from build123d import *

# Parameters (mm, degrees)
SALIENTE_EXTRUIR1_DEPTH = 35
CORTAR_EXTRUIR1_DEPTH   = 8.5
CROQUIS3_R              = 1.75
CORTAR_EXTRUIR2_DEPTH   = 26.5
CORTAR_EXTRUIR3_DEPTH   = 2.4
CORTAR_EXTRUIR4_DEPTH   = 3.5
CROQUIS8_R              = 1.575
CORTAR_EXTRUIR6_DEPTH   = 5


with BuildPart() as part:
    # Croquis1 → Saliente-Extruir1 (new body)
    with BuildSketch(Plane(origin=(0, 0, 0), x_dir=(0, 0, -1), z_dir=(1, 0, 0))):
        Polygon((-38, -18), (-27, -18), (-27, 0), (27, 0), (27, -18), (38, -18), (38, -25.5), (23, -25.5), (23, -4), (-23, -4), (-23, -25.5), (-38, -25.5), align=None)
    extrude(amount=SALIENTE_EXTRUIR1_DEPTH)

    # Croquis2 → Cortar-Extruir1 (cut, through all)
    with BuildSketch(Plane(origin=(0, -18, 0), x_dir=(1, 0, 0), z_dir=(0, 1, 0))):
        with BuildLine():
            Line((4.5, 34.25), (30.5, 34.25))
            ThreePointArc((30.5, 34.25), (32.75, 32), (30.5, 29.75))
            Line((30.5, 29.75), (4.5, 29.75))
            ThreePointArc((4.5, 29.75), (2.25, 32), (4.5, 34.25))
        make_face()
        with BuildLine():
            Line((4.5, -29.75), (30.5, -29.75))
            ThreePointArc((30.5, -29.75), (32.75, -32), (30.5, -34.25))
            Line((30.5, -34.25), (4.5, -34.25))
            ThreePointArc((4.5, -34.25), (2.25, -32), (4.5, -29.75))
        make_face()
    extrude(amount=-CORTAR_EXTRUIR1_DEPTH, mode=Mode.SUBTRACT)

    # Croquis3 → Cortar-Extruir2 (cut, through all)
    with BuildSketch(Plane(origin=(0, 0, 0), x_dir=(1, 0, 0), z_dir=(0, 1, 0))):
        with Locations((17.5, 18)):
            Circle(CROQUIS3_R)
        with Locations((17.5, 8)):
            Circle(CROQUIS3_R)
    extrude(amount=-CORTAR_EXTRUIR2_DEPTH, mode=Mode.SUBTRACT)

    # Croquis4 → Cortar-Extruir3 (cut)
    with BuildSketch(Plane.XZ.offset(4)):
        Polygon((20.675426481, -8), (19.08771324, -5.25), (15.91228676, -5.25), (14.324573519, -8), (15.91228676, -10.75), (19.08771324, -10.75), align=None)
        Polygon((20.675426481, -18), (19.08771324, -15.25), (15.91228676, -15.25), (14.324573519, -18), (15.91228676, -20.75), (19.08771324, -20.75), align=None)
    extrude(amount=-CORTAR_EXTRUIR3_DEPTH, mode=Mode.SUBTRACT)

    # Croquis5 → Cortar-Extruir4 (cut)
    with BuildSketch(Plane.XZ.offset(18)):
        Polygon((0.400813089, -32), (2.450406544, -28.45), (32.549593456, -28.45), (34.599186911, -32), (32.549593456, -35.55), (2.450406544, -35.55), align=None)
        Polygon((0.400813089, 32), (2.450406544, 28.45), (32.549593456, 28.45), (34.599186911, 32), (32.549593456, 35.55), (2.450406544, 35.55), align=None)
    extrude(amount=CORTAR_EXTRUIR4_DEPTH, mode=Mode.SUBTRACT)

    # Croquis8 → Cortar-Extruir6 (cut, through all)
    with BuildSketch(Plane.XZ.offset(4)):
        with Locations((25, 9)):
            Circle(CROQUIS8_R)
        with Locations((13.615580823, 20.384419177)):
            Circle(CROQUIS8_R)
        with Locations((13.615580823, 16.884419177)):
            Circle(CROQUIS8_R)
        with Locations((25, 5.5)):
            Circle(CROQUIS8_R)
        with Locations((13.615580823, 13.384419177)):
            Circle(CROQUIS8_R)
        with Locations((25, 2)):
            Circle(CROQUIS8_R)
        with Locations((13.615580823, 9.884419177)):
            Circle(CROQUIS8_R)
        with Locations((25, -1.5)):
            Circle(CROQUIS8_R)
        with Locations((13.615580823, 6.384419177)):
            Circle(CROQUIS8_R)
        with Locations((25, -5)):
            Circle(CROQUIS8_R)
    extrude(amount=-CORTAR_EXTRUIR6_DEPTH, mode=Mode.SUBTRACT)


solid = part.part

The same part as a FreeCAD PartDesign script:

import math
import FreeCAD as App
import Part
import Sketcher

V = App.Vector
Q = App.Units.Quantity

doc = App.newDocument("Part")
body = doc.addObject("PartDesign::Body", "Body")

# Sketch on YZ plane
sketch1 = doc.addObject("Sketcher::SketchObject", "Sketch")
body.addObject(sketch1)
sketch1.AttachmentSupport = (doc.YZ_Plane, [""])
sketch1.MapMode = "FlatFace"
sketch1.addGeometry([
    Part.LineSegment(V(-18, 27, 0), V(-18, 38, 0)),  # 0
    Part.LineSegment(V(-18, 38, 0), V(-26, 38, 0)),  # 1
    Part.LineSegment(V(-26, 38, 0), V(-26, 23, 0)),  # 2
    Part.LineSegment(V(-26, 23, 0), V(-4, 23, 0)),  # 3
    Part.LineSegment(V(-4, 23, 0), V(-4, -23, 0)),  # 4
    Part.LineSegment(V(-4, -23, 0), V(-26, -23, 0)),  # 5
    Part.LineSegment(V(-26, -23, 0), V(-26, -38, 0)),  # 6
    Part.LineSegment(V(-26, -38, 0), V(-18, -38, 0)),  # 7
    Part.LineSegment(V(-18, -38, 0), V(-18, -27, 0)),  # 8
    Part.LineSegment(V(-18, -27, 0), V(0, -27, 0)),  # 9
    Part.LineSegment(V(0, -27, 0), V(0, 27, 0)),  # 10
    Part.LineSegment(V(0, 27, 0), V(-18, 27, 0)),  # 11
], False)
sketch1.addConstraint([
    Sketcher.Constraint("Coincident", 0, 2, 1, 1),
    Sketcher.Constraint("Coincident", 1, 2, 2, 1),
    Sketcher.Constraint("Coincident", 2, 2, 3, 1),
    Sketcher.Constraint("Coincident", 3, 2, 4, 1),
    Sketcher.Constraint("Coincident", 4, 2, 5, 1),
    Sketcher.Constraint("Coincident", 5, 2, 6, 1),
    Sketcher.Constraint("Coincident", 6, 2, 7, 1),
    Sketcher.Constraint("Coincident", 7, 2, 8, 1),
    Sketcher.Constraint("Coincident", 8, 2, 9, 1),
    Sketcher.Constraint("Coincident", 9, 2, 10, 1),
    Sketcher.Constraint("Coincident", 10, 2, 11, 1),
    Sketcher.Constraint("Coincident", 11, 2, 0, 1),
    Sketcher.Constraint("Vertical", 0),
    Sketcher.Constraint("Horizontal", 1),
    Sketcher.Constraint("Vertical", 2),
    Sketcher.Constraint("Horizontal", 3),
    Sketcher.Constraint("Vertical", 4),
    Sketcher.Constraint("Horizontal", 5),
    Sketcher.Constraint("Vertical", 6),
    Sketcher.Constraint("Horizontal", 7),
    Sketcher.Constraint("Vertical", 8),
    Sketcher.Constraint("Horizontal", 9),
    Sketcher.Constraint("Vertical", 10),
    Sketcher.Constraint("Horizontal", 11),
    Sketcher.Constraint("Symmetric", 9, 2, 10, 2, -1, 1),
    Sketcher.Constraint("Symmetric", 2, 2, 5, 2, -1),
    Sketcher.Constraint("Symmetric", 0, 2, 7, 2, -1),
    Sketcher.Constraint("DistanceX", 9, 1, 9, 2, 18.0),
    Sketcher.Constraint("DistanceY", 0, 1, 0, 2, 11.0),
    Sketcher.Constraint("DistanceY", 2, 2, 2, 1, 15.0),
    Sketcher.Constraint("DistanceY", 4, 2, 4, 1, 46.0),
    Sketcher.Constraint("DistanceX", 1, 2, 1, 1, 7.5),
    Sketcher.Constraint("DistanceX", 3, 1, 3, 2, 21.5),
])
pad1 = doc.addObject("PartDesign::Pad", "Pad")
body.addObject(pad1)
pad1.Profile = sketch1
pad1.Length = 35

# Sketch on XZ plane
sketch2 = doc.addObject("Sketcher::SketchObject", "Sketch001")
body.addObject(sketch2)
sketch2.AttachmentSupport = (doc.XZ_Plane, [""])
sketch2.MapMode = "FlatFace"
sketch2.AttachmentOffset = App.Placement(V(0, 0, 18), App.Rotation())
sketch2.addGeometry([
    Part.LineSegment(V(30.5, -34.2, 0), V(4.5, -34.2, 0)),  # 0
    Part.ArcOfCircle(Part.Circle(V(4.5, -32, 0), V(0, 0, 1), 2.2), math.radians(90), math.radians(270)),  # 1
    Part.LineSegment(V(4.5, -29.8, 0), V(30.5, -29.8, 0)),  # 2
    Part.ArcOfCircle(Part.Circle(V(30.5, -32, 0), V(0, 0, 1), 2.2), math.radians(-90), math.radians(90)),  # 3
    Part.LineSegment(V(30.5, 29.8, 0), V(4.5, 29.8, 0)),  # 4
    Part.ArcOfCircle(Part.Circle(V(4.5, 32, 0), V(0, 0, 1), 2.2), math.radians(90), math.radians(270)),  # 5
    Part.LineSegment(V(4.5, 34.2, 0), V(30.5, 34.2, 0)),  # 6
    Part.ArcOfCircle(Part.Circle(V(30.5, 32, 0), V(0, 0, 1), 2.2), math.radians(-90), math.radians(90)),  # 7
], False)
sketch2.addConstraint([
    Sketcher.Constraint("Tangent", 0, 2, 1, 2),
    Sketcher.Constraint("Tangent", 1, 1, 2, 1),
    Sketcher.Constraint("Tangent", 2, 2, 3, 2),
    Sketcher.Constraint("Tangent", 3, 1, 0, 1),
    Sketcher.Constraint("Tangent", 4, 2, 5, 2),
    Sketcher.Constraint("Tangent", 5, 1, 6, 1),
    Sketcher.Constraint("Tangent", 6, 2, 7, 2),
    Sketcher.Constraint("Tangent", 7, 1, 4, 1),
    Sketcher.Constraint("Horizontal", 0),
    Sketcher.Constraint("Horizontal", 2),
    Sketcher.Constraint("Horizontal", 4),
    Sketcher.Constraint("Horizontal", 6),
    Sketcher.Constraint("Equal", 3, 5),
    Sketcher.Constraint("Symmetric", 1, 3, 5, 3, -1),
    Sketcher.Constraint("Vertical", 3, 3, 7, 3),
    Sketcher.Constraint("DistanceX", 0, 2, 0, 1, 26.0),
    Sketcher.Constraint("Radius", 1, 2.25),
    Sketcher.Constraint("DistanceY", 1, 3, -1, 1, 32.0),
    Sketcher.Constraint("DistanceX", -1, 1, 1, 3, 4.5),
])
pocket1 = doc.addObject("PartDesign::Pocket", "Pocket")
body.addObject(pocket1)
pocket1.Profile = sketch2
pocket1.Type = "ThroughAll"
pocket1.Reversed = True

# Sketch on XZ plane
sketch3 = doc.addObject("Sketcher::SketchObject", "Sketch002")
body.addObject(sketch3)
sketch3.AttachmentSupport = (doc.XZ_Plane, [""])
sketch3.MapMode = "FlatFace"
sketch3.addGeometry([
    Part.Circle(V(17.5, -18, 0), V(0, 0, 1), 1.8),
    Part.Circle(V(17.5, -8, 0), V(0, 0, 1), 1.8),
], False)
sketch3.addConstraint([
    Sketcher.Constraint("Equal", 0, 1),
    Sketcher.Constraint("Vertical", 0, 3, 1, 3),
    Sketcher.Constraint("Diameter", 0, 3.5),
    Sketcher.Constraint("DistanceY", 0, 3, -1, 1, 18.0),
    Sketcher.Constraint("DistanceY", 1, 3, -1, 1, 8.0),
    Sketcher.Constraint("DistanceX", -1, 1, 0, 3, 17.5),
])
pocket2 = doc.addObject("PartDesign::Pocket", "Pocket001")
body.addObject(pocket2)
pocket2.Profile = sketch3
pocket2.Type = "ThroughAll"
pocket2.Reversed = True

# Sketch on XZ plane
sketch4 = doc.addObject("Sketcher::SketchObject", "Sketch003")
body.addObject(sketch4)
sketch4.AttachmentSupport = (doc.XZ_Plane, [""])
sketch4.MapMode = "FlatFace"
sketch4.AttachmentOffset = App.Placement(V(0, 0, 4), App.Rotation())
sketch4.addGeometry([
    Part.LineSegment(V(20.7, -8, 0), V(19.1, -5.2, 0)),  # 0
    Part.LineSegment(V(19.1, -5.2, 0), V(15.9, -5.2, 0)),  # 1
    Part.LineSegment(V(15.9, -5.2, 0), V(14.3, -8, 0)),  # 2
    Part.LineSegment(V(14.3, -8, 0), V(15.9, -10.8, 0)),  # 3
    Part.LineSegment(V(15.9, -10.8, 0), V(19.1, -10.8, 0)),  # 4
    Part.LineSegment(V(19.1, -10.8, 0), V(20.7, -8, 0)),  # 5
    Part.LineSegment(V(20.7, -18, 0), V(19.1, -15.2, 0)),  # 6
    Part.LineSegment(V(19.1, -15.2, 0), V(15.9, -15.2, 0)),  # 7
    Part.LineSegment(V(15.9, -15.2, 0), V(14.3, -18, 0)),  # 8
    Part.LineSegment(V(14.3, -18, 0), V(15.9, -20.8, 0)),  # 9
    Part.LineSegment(V(15.9, -20.8, 0), V(19.1, -20.8, 0)),  # 10
    Part.LineSegment(V(19.1, -20.8, 0), V(20.7, -18, 0)),  # 11
], False)
sketch4.addConstraint([
    Sketcher.Constraint("Coincident", 0, 2, 1, 1),
    Sketcher.Constraint("Coincident", 1, 2, 2, 1),
    Sketcher.Constraint("Coincident", 2, 2, 3, 1),
    Sketcher.Constraint("Coincident", 3, 2, 4, 1),
    Sketcher.Constraint("Coincident", 4, 2, 5, 1),
    Sketcher.Constraint("Coincident", 5, 2, 0, 1),
    Sketcher.Constraint("Coincident", 6, 2, 7, 1),
    Sketcher.Constraint("Coincident", 7, 2, 8, 1),
    Sketcher.Constraint("Coincident", 8, 2, 9, 1),
    Sketcher.Constraint("Coincident", 9, 2, 10, 1),
    Sketcher.Constraint("Coincident", 10, 2, 11, 1),
    Sketcher.Constraint("Coincident", 11, 2, 6, 1),
    Sketcher.Constraint("Horizontal", 1),
    Sketcher.Constraint("Horizontal", 4),
    Sketcher.Constraint("Horizontal", 7),
    Sketcher.Constraint("Horizontal", 10),
    Sketcher.Constraint("Parallel", 0, 3),
    Sketcher.Constraint("Parallel", 2, 5),
    Sketcher.Constraint("Parallel", 3, 6),
    Sketcher.Constraint("Parallel", 5, 8),
    Sketcher.Constraint("Parallel", 6, 9),
    Sketcher.Constraint("Parallel", 8, 11),
    Sketcher.Constraint("Horizontal", 2, 2, 5, 2),
    Sketcher.Constraint("Horizontal", 8, 2, 11, 2),
    Sketcher.Constraint("Vertical", 1, 2, 3, 2),
    Sketcher.Constraint("Vertical", 0, 2, 4, 2),
    Sketcher.Constraint("Vertical", 4, 2, 6, 2),
    Sketcher.Constraint("Vertical", 3, 2, 7, 2),
    Sketcher.Constraint("Vertical", 2, 2, 8, 2),
    Sketcher.Constraint("Vertical", 7, 2, 9, 2),
    Sketcher.Constraint("Angle", 0, Q("120 deg")),
    Sketcher.Constraint("DistanceY", 2, 2, -1, 1, 8.0),
    Sketcher.Constraint("DistanceY", 8, 2, -1, 1, 18.0),
    Sketcher.Constraint("DistanceY", 3, 2, 1, 2, 5.5),
    Sketcher.Constraint("DistanceX", 1, 2, 1, 1, 3.175426),
    Sketcher.Constraint("DistanceX", -1, 1, 0, 2, 19.087713),
])
pocket3 = doc.addObject("PartDesign::Pocket", "Pocket002")
body.addObject(pocket3)
pocket3.Profile = sketch4
pocket3.Length = 2.4

# Sketch on XZ plane
sketch5 = doc.addObject("Sketcher::SketchObject", "Sketch004")
body.addObject(sketch5)
sketch5.AttachmentSupport = (doc.XZ_Plane, [""])
sketch5.MapMode = "FlatFace"
sketch5.AttachmentOffset = App.Placement(V(0, 0, 18), App.Rotation())
sketch5.addGeometry([
    Part.LineSegment(V(2.5, -28.4, 0), V(0.4, -32, 0)),  # 0
    Part.LineSegment(V(0.4, -32, 0), V(2.5, -35.5, 0)),  # 1
    Part.LineSegment(V(2.5, -35.5, 0), V(32.5, -35.5, 0)),  # 2
    Part.LineSegment(V(32.5, -35.5, 0), V(34.6, -32, 0)),  # 3
    Part.LineSegment(V(34.6, -32, 0), V(32.5, -28.4, 0)),  # 4
    Part.LineSegment(V(32.5, -28.4, 0), V(2.5, -28.4, 0)),  # 5
    Part.LineSegment(V(0.4, 32, 0), V(2.5, 28.4, 0)),  # 6
    Part.LineSegment(V(2.5, 28.4, 0), V(32.5, 28.4, 0)),  # 7
    Part.LineSegment(V(32.5, 28.4, 0), V(34.6, 32, 0)),  # 8
    Part.LineSegment(V(34.6, 32, 0), V(32.5, 35.5, 0)),  # 9
    Part.LineSegment(V(32.5, 35.5, 0), V(2.5, 35.5, 0)),  # 10
    Part.LineSegment(V(2.5, 35.5, 0), V(0.4, 32, 0)),  # 11
], False)
sketch5.addConstraint([
    Sketcher.Constraint("Coincident", 0, 2, 1, 1),
    Sketcher.Constraint("Coincident", 1, 2, 2, 1),
    Sketcher.Constraint("Coincident", 2, 2, 3, 1),
    Sketcher.Constraint("Coincident", 3, 2, 4, 1),
    Sketcher.Constraint("Coincident", 4, 2, 5, 1),
    Sketcher.Constraint("Coincident", 5, 2, 0, 1),
    Sketcher.Constraint("Coincident", 6, 2, 7, 1),
    Sketcher.Constraint("Coincident", 7, 2, 8, 1),
    Sketcher.Constraint("Coincident", 8, 2, 9, 1),
    Sketcher.Constraint("Coincident", 9, 2, 10, 1),
    Sketcher.Constraint("Coincident", 10, 2, 11, 1),
    Sketcher.Constraint("Coincident", 11, 2, 6, 1),
    Sketcher.Constraint("Horizontal", 2),
    Sketcher.Constraint("Horizontal", 5),
    Sketcher.Constraint("Horizontal", 7),
    Sketcher.Constraint("Horizontal", 10),
    Sketcher.Constraint("Symmetric", 5, 2, 6, 2, -1),
    Sketcher.Constraint("Symmetric", 3, 2, 8, 2, -1),
    Sketcher.Constraint("Symmetric", 2, 2, 9, 2, -1),
    Sketcher.Constraint("Symmetric", 0, 2, 11, 2, -1),
    Sketcher.Constraint("Parallel", 0, 3),
    Sketcher.Constraint("Parallel", 1, 4),
    Sketcher.Constraint("Parallel", 4, 6),
    Sketcher.Constraint("Parallel", 3, 8),
    Sketcher.Constraint("Parallel", 8, 11),
    Sketcher.Constraint("Horizontal", 0, 2, 3, 2),
    Sketcher.Constraint("Vertical", 2, 2, 4, 2),
    Sketcher.Constraint("Angle", 0, Q("-120 deg")),
    Sketcher.Constraint("DistanceY", 0, 2, -1, 1, 32.0),
    Sketcher.Constraint("DistanceY", 2, 2, 4, 2, 7.1),
    Sketcher.Constraint("DistanceX", 2, 1, 2, 2, 30.099187),
    Sketcher.Constraint("DistanceX", -1, 1, 0, 2, 0.400813),
])
pocket4 = doc.addObject("PartDesign::Pocket", "Pocket003")
body.addObject(pocket4)
pocket4.Profile = sketch5
pocket4.Length = 3.5
pocket4.Reversed = True

# Sketch on XZ plane
sketch6 = doc.addObject("Sketcher::SketchObject", "Sketch005")
body.addObject(sketch6)
sketch6.AttachmentSupport = (doc.XZ_Plane, [""])
sketch6.MapMode = "FlatFace"
sketch6.AttachmentOffset = App.Placement(V(0, 0, 4), App.Rotation())
sketch6.addGeometry([
    Part.Circle(V(25, 9, 0), V(0, 0, 1), 1.6),  # 0
    Part.Circle(V(13.6, 20.4, 0), V(0, 0, 1), 1.6),  # 1
    Part.Circle(V(13.6, 16.9, 0), V(0, 0, 1), 1.6),  # 2
    Part.Circle(V(25, 5.5, 0), V(0, 0, 1), 1.6),  # 3
    Part.Circle(V(13.6, 13.4, 0), V(0, 0, 1), 1.6),  # 4
    Part.Circle(V(25, 2, 0), V(0, 0, 1), 1.6),  # 5
    Part.Circle(V(13.6, 9.9, 0), V(0, 0, 1), 1.6),  # 6
    Part.Circle(V(25, -1.5, 0), V(0, 0, 1), 1.6),  # 7
    Part.Circle(V(13.6, 6.4, 0), V(0, 0, 1), 1.6),  # 8
    Part.Circle(V(25, -5, 0), V(0, 0, 1), 1.6),  # 9
], False)
sketch6.addConstraint([
    Sketcher.Constraint("Equal", 0, 1),
    Sketcher.Constraint("Equal", 1, 2),
    Sketcher.Constraint("Equal", 2, 3),
    Sketcher.Constraint("Equal", 3, 4),
    Sketcher.Constraint("Equal", 4, 5),
    Sketcher.Constraint("Equal", 5, 6),
    Sketcher.Constraint("Equal", 6, 7),
    Sketcher.Constraint("Equal", 7, 8),
    Sketcher.Constraint("Equal", 8, 9),
    Sketcher.Constraint("Vertical", 1, 3, 2, 3),
    Sketcher.Constraint("Vertical", 0, 3, 3, 3),
    Sketcher.Constraint("Vertical", 2, 3, 4, 3),
    Sketcher.Constraint("Vertical", 3, 3, 5, 3),
    Sketcher.Constraint("Vertical", 4, 3, 6, 3),
    Sketcher.Constraint("Vertical", 5, 3, 7, 3),
    Sketcher.Constraint("Vertical", 6, 3, 8, 3),
    Sketcher.Constraint("Vertical", 7, 3, 9, 3),
    Sketcher.Constraint("Diameter", 0, 3.15),
    Sketcher.Constraint("DistanceX", -1, 1, 0, 3, 25.0),
    Sketcher.Constraint("DistanceY", -1, 1, 0, 3, 9.0),
    Sketcher.Constraint("DistanceY", -1, 1, 5, 3, 2.0),
    Sketcher.Constraint("DistanceY", 9, 3, -1, 1, 5.0),
    Sketcher.Constraint("DistanceY", 4, 3, 1, 3, 7.0),
    Sketcher.Constraint("DistanceY", 6, 3, 2, 3, 7.0),
    Sketcher.Constraint("DistanceY", 7, 3, 3, 3, 7.0),
    Sketcher.Constraint("DistanceY", 8, 3, 4, 3, 7.0),
    Sketcher.Constraint("DistanceY", -1, 1, 3, 3, 5.5),
    Sketcher.Constraint("DistanceY", 2, 3, 1, 3, 3.5),
    Sketcher.Constraint("DistanceX", -1, 1, 1, 3, 13.615581),
    Sketcher.Constraint("DistanceY", -1, 1, 1, 3, 20.384419),
])
pocket5 = doc.addObject("PartDesign::Pocket", "Pocket004")
body.addObject(pocket5)
pocket5.Profile = sketch6
pocket5.Type = "ThroughAll"

doc.recompute()
